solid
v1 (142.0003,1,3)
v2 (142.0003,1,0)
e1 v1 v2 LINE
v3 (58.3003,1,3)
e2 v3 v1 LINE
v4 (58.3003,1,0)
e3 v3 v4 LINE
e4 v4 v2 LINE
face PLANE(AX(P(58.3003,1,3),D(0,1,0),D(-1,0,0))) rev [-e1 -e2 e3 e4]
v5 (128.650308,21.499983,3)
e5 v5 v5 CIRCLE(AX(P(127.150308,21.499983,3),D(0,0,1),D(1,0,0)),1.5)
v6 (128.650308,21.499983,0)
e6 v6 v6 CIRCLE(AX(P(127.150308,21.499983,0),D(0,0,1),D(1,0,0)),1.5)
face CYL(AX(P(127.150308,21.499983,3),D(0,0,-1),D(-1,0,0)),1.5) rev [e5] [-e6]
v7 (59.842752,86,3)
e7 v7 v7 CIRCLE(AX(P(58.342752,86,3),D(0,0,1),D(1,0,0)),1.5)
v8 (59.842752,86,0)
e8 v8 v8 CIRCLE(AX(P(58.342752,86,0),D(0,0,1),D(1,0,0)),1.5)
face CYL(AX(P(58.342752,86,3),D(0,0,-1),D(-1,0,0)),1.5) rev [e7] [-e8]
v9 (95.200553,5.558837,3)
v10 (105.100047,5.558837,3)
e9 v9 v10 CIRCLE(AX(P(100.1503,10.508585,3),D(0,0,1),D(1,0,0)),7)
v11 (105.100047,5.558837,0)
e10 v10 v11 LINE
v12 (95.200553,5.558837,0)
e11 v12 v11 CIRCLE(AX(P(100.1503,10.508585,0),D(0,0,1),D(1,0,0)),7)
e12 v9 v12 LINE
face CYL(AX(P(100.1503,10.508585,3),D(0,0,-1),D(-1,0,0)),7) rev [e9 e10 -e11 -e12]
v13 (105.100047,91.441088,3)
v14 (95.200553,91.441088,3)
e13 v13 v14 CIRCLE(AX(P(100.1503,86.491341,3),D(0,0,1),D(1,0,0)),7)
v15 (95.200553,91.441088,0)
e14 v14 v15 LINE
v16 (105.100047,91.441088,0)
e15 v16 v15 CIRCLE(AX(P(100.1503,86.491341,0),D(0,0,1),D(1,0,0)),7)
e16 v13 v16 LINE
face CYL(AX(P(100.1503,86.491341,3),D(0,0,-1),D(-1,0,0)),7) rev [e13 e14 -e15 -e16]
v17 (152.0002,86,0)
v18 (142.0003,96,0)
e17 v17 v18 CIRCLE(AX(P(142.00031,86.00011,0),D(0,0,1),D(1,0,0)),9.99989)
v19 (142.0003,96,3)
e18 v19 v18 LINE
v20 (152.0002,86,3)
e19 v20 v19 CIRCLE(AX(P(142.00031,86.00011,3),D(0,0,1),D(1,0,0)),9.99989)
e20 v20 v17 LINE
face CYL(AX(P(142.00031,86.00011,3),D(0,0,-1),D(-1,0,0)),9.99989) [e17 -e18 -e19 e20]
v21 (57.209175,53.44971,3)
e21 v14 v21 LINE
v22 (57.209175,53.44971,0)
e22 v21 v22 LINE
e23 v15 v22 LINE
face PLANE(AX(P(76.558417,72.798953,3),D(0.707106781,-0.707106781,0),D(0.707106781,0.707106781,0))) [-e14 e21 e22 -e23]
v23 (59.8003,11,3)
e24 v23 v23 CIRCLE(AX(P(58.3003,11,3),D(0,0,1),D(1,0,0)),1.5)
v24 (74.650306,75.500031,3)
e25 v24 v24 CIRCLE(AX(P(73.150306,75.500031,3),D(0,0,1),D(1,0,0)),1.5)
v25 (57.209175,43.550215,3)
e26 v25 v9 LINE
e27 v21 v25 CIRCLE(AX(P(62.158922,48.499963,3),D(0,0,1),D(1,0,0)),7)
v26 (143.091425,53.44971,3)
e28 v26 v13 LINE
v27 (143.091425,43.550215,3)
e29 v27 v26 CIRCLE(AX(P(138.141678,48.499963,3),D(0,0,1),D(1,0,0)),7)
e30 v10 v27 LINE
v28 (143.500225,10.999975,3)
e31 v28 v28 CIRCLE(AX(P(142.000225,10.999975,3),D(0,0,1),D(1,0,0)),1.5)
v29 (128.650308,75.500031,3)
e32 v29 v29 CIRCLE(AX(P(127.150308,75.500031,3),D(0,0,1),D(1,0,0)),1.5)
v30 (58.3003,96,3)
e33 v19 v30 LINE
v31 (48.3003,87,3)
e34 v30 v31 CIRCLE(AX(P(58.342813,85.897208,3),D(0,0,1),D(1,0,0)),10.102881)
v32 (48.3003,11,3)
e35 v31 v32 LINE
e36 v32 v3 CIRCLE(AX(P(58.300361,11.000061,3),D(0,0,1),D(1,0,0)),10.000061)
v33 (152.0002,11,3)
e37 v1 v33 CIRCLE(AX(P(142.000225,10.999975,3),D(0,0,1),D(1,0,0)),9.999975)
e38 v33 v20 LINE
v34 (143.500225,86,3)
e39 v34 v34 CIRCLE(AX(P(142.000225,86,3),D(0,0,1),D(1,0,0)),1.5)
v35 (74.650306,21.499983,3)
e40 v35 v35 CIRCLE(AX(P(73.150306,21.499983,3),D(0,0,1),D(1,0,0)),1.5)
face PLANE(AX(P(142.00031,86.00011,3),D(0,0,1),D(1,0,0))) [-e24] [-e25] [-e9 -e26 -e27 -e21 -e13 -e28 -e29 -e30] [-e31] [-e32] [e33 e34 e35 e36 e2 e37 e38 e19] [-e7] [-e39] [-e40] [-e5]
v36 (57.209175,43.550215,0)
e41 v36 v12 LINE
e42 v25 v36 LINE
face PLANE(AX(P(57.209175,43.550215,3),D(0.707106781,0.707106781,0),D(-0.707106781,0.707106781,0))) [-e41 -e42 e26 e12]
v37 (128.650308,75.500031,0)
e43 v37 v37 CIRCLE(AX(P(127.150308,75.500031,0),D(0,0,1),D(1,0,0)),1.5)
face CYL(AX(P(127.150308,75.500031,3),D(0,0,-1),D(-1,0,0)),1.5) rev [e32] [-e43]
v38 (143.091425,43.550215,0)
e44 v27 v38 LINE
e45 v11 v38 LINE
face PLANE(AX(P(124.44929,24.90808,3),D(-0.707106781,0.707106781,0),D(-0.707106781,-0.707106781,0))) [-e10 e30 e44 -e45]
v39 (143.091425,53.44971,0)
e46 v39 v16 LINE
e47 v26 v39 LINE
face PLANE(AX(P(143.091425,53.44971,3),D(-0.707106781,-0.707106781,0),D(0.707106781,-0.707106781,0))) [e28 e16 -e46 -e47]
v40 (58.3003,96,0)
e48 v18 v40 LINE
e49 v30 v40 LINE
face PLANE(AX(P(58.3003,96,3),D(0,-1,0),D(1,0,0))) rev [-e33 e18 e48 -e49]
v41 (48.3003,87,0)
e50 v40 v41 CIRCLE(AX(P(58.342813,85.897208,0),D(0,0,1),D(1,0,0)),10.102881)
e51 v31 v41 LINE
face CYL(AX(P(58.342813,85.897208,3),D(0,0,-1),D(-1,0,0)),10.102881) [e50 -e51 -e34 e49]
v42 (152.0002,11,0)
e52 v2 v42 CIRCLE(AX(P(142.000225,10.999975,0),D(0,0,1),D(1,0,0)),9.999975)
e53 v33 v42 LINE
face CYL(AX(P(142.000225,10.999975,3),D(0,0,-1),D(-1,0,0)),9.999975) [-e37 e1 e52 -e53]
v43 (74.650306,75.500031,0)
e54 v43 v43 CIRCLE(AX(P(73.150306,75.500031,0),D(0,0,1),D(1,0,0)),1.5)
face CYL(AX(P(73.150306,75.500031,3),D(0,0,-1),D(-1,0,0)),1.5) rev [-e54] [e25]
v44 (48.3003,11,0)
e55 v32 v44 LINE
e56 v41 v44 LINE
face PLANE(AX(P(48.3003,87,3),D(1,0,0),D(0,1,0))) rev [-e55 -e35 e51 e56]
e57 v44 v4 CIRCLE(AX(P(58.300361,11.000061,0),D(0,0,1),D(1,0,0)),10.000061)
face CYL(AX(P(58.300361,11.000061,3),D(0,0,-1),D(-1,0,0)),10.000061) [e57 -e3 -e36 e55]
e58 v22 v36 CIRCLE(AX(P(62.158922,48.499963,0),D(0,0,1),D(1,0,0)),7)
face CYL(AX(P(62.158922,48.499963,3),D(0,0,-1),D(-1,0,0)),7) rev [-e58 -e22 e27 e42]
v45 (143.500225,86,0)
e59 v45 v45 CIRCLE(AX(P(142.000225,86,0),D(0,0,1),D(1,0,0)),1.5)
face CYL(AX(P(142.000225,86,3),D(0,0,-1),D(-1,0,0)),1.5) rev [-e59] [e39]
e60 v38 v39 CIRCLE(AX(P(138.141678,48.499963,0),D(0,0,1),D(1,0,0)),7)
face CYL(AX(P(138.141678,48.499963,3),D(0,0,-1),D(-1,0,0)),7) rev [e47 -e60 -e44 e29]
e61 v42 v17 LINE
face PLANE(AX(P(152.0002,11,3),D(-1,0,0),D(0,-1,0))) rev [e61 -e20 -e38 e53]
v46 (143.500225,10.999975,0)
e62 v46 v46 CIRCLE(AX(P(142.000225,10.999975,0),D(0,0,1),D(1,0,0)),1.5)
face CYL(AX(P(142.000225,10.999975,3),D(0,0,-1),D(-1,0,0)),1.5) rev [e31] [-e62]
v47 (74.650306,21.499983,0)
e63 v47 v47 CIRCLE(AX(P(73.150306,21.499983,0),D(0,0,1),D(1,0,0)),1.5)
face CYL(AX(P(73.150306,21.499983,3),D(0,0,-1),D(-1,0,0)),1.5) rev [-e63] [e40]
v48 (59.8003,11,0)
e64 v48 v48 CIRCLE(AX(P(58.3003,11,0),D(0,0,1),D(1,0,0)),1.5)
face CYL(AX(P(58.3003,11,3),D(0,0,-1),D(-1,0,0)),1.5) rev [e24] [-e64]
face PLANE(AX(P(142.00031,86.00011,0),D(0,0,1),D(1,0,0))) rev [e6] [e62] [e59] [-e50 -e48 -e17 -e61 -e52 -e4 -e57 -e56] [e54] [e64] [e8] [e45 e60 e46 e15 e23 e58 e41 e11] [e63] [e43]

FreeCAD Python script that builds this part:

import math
import FreeCAD as App
import Part
import Sketcher
from FreeCAD import Vector
Q = App.Units.Quantity

doc = App.newDocument("Part")
body = doc.addObject("PartDesign::Body", "Body")

# Sketch on XY plane
sketch1 = body.newObject("Sketcher::SketchObject", "Sketch")
sketch1.AttachmentSupport = (doc.getObject("XY_Plane"), [""])
sketch1.MapMode = "FlatFace"
sketch1.addGeometry([
    Part.LineSegment(Vector(58.3, 1, 0), Vector(142, 1, 0)),  # 0
    Part.ArcOfCircle(Part.Circle(Vector(142, 11, 0), Vector(0, 0, 1), 10), math.radians(-90), math.radians(0)),  # 1
    Part.LineSegment(Vector(152, 11, 0), Vector(152, 86, 0)),  # 2
    Part.ArcOfCircle(Part.Circle(Vector(142, 86, 0), Vector(0, 0, 1), 10), math.radians(0), math.radians(90)),  # 3
    Part.LineSegment(Vector(142, 96, 0), Vector(58.3, 96, 0)),  # 4
    Part.ArcOfCircle(Part.Circle(Vector(58.3, 85.9, 0), Vector(0, 0, 1), 10.1), math.radians(90), math.radians(174)),  # 5
    Part.LineSegment(Vector(48.3, 87, 0), Vector(48.3, 11, 0)),  # 6
    Part.ArcOfCircle(Part.Circle(Vector(58.3, 11, 0), Vector(0, 0, 1), 10), math.radians(-180), math.radians(-90)),  # 7
    Part.Circle(Vector(58.3, 11, 0), Vector(0, 0, 1), 1.5),  # 8
    Part.Circle(Vector(73.2, 21.5, 0), Vector(0, 0, 1), 1.5),  # 9
    Part.Circle(Vector(142, 11, 0), Vector(0, 0, 1), 1.5),  # 10
    Part.Circle(Vector(127.2, 21.5, 0), Vector(0, 0, 1), 1.5),  # 11
    Part.ArcOfCircle(Part.Circle(Vector(138.1, 48.5, 0), Vector(0, 0, 1), 7), math.radians(-45), math.radians(45)),  # 12
    Part.LineSegment(Vector(143.1, 43.6, 0), Vector(105.1, 5.6, 0)),  # 13
    Part.ArcOfCircle(Part.Circle(Vector(100.2, 10.5, 0), Vector(0, 0, 1), 7), math.radians(-135), math.radians(-45)),  # 14
    Part.LineSegment(Vector(95.2, 5.6, 0), Vector(57.2, 43.6, 0)),  # 15
    Part.ArcOfCircle(Part.Circle(Vector(62.2, 48.5, 0), Vector(0, 0, 1), 7), math.radians(135), math.radians(225)),  # 16
    Part.LineSegment(Vector(57.2, 53.4, 0), Vector(95.2, 91.4, 0)),  # 17
    Part.ArcOfCircle(Part.Circle(Vector(100.2, 86.5, 0), Vector(0, 0, 1), 7), math.radians(45), math.radians(135)),  # 18
    Part.LineSegment(Vector(105.1, 91.4, 0), Vector(143.1, 53.4, 0)),  # 19
    Part.Circle(Vector(73.2, 75.5, 0), Vector(0, 0, 1), 1.5),  # 20
    Part.Circle(Vector(58.3, 86, 0), Vector(0, 0, 1), 1.5),  # 21
    Part.Circle(Vector(127.2, 75.5, 0), Vector(0, 0, 1), 1.5),  # 22
    Part.Circle(Vector(142, 86, 0), Vector(0, 0, 1), 1.5),  # 23
], False)
sketch1.addConstraint([
    Sketcher.Constraint("Coincident", 0, 2, 1, 1),
    Sketcher.Constraint("Coincident", 1, 2, 2, 1),
    Sketcher.Constraint("Coincident", 2, 2, 3, 1),
    Sketcher.Constraint("Tangent", 3, 2, 4, 1),
    Sketcher.Constraint("Coincident", 4, 2, 5, 1),
    Sketcher.Constraint("Coincident", 5, 2, 6, 1),
    Sketcher.Constraint("Coincident", 6, 2, 7, 1),
    Sketcher.Constraint("Coincident", 7, 2, 0, 1),
    Sketcher.Constraint("Tangent", 12, 1, 13, 1),
    Sketcher.Constraint("Tangent", 13, 2, 14, 2),
    Sketcher.Constraint("Tangent", 14, 1, 15, 1),
    Sketcher.Constraint("Tangent", 15, 2, 16, 2),
    Sketcher.Constraint("Tangent", 16, 1, 17, 1),
    Sketcher.Constraint("Tangent", 17, 2, 18, 2),
    Sketcher.Constraint("Tangent", 18, 1, 19, 1),
    Sketcher.Constraint("Tangent", 19, 2, 12, 2),
    Sketcher.Constraint("Horizontal", 0),
    Sketcher.Constraint("Vertical", 2),
    Sketcher.Constraint("Horizontal", 4),
    Sketcher.Constraint("Vertical", 6),
    Sketcher.Constraint("Coincident", 10, 3, 1, 3),
    Sketcher.Constraint("Equal", 8, 9),
    Sketcher.Constraint("Equal", 9, 10),
    Sketcher.Constraint("Equal", 10, 11),
    Sketcher.Constraint("Equal", 12, 14),
    Sketcher.Constraint("Equal", 14, 16),
    Sketcher.Constraint("Equal", 16, 18),
    Sketcher.Constraint("Equal", 11, 20),
    Sketcher.Constraint("Equal", 20, 21),
    Sketcher.Constraint("Equal", 21, 22),
    Sketcher.Constraint("Equal", 22, 23),
    Sketcher.Constraint("Perpendicular", 13, 15),
    Sketcher.Constraint("Perpendicular", 15, 17),
    Sketcher.Constraint("Perpendicular", 17, 19),
    Sketcher.Constraint("Horizontal", 9, 3, 11, 3),
    Sketcher.Constraint("Horizontal", 12, 3, 16, 3),
    Sketcher.Constraint("Horizontal", 20, 3, 22, 3),
    Sketcher.Constraint("Horizontal", 21, 3, 23, 3),
    Sketcher.Constraint("Horizontal", 8, 3, 1, 2),
    Sketcher.Constraint("Horizontal", 23, 3, 2, 2),
    Sketcher.Constraint("Horizontal", 1, 2, 6, 2),
    Sketcher.Constraint("Horizontal", 13, 2, 14, 1),
    Sketcher.Constraint("Vertical", 9, 3, 20, 3),
    Sketcher.Constraint("Vertical", 11, 3, 22, 3),
    Sketcher.Constraint("Vertical", 10, 3, 23, 3),
    Sketcher.Constraint("Vertical", 0, 2, 3, 2),
    Sketcher.Constraint("Vertical", 8, 3, 4, 2),
    Sketcher.Constraint("Vertical", 4, 2, 7, 2),
    Sketcher.Constraint("Diameter", 8, Q("3 mm")),
    Sketcher.Constraint("Radius", 12, Q("7 mm")),
    Sketcher.Constraint("DistanceY", 2, 1, 2, 2, Q("75 mm")),
    Sketcher.Constraint("DistanceY", 6, 2, 6, 1, Q("76 mm")),
    Sketcher.Constraint("DistanceX", 0, 1, 0, 2, Q("83.7 mm")),
    Sketcher.Constraint("DistanceY", -1, 1, 8, 3, Q("11 mm")),
    Sketcher.Constraint("DistanceY", -1, 1, 0, 2, Q("1 mm")),
    Sketcher.Constraint("DistanceY", -1, 1, 3, 2, Q("96 mm")),
    Sketcher.Constraint("DistanceX", 5, 2, 4, 2, Q("10 mm")),
    Sketcher.Constraint("Radius", 3, Q("9.99989 mm")),
    Sketcher.Constraint("Radius", 5, Q("10.102881 mm")),
    Sketcher.Constraint("Radius", 7, Q("10.000061 mm")),
    Sketcher.Constraint("DistanceX", 11, 3, 3, 3, Q("14.850002 mm")),
    Sketcher.Constraint("DistanceX", 14, 3, 0, 2, Q("41.85 mm")),
    Sketcher.Constraint("Radius", 1, Q("9.999975 mm")),
    Sketcher.Constraint("DistanceX", -1, 1, 8, 3, Q("58.3003 mm")),
    Sketcher.Constraint("DistanceY", 14, 3, 9, 3, Q("10.991398 mm")),
    Sketcher.Constraint("DistanceY", 7, 3, 16, 3, Q("37.499902 mm")),
    Sketcher.Constraint("DistanceX", 1, 3, 12, 1, Q("1.091201 mm")),
    Sketcher.Constraint("DistanceX", 21, 3, 17, 2, Q("36.857801 mm")),
    Sketcher.Constraint("DistanceY", -1, 1, 20, 3, Q("75.500031 mm")),
    Sketcher.Constraint("DistanceX", 9, 3, 1, 3, Q("68.849918 mm")),
])
pad1 = body.newObject("PartDesign::Pad", "Pad")
pad1.Profile = sketch1
pad1.Length = 3

doc.recompute()
